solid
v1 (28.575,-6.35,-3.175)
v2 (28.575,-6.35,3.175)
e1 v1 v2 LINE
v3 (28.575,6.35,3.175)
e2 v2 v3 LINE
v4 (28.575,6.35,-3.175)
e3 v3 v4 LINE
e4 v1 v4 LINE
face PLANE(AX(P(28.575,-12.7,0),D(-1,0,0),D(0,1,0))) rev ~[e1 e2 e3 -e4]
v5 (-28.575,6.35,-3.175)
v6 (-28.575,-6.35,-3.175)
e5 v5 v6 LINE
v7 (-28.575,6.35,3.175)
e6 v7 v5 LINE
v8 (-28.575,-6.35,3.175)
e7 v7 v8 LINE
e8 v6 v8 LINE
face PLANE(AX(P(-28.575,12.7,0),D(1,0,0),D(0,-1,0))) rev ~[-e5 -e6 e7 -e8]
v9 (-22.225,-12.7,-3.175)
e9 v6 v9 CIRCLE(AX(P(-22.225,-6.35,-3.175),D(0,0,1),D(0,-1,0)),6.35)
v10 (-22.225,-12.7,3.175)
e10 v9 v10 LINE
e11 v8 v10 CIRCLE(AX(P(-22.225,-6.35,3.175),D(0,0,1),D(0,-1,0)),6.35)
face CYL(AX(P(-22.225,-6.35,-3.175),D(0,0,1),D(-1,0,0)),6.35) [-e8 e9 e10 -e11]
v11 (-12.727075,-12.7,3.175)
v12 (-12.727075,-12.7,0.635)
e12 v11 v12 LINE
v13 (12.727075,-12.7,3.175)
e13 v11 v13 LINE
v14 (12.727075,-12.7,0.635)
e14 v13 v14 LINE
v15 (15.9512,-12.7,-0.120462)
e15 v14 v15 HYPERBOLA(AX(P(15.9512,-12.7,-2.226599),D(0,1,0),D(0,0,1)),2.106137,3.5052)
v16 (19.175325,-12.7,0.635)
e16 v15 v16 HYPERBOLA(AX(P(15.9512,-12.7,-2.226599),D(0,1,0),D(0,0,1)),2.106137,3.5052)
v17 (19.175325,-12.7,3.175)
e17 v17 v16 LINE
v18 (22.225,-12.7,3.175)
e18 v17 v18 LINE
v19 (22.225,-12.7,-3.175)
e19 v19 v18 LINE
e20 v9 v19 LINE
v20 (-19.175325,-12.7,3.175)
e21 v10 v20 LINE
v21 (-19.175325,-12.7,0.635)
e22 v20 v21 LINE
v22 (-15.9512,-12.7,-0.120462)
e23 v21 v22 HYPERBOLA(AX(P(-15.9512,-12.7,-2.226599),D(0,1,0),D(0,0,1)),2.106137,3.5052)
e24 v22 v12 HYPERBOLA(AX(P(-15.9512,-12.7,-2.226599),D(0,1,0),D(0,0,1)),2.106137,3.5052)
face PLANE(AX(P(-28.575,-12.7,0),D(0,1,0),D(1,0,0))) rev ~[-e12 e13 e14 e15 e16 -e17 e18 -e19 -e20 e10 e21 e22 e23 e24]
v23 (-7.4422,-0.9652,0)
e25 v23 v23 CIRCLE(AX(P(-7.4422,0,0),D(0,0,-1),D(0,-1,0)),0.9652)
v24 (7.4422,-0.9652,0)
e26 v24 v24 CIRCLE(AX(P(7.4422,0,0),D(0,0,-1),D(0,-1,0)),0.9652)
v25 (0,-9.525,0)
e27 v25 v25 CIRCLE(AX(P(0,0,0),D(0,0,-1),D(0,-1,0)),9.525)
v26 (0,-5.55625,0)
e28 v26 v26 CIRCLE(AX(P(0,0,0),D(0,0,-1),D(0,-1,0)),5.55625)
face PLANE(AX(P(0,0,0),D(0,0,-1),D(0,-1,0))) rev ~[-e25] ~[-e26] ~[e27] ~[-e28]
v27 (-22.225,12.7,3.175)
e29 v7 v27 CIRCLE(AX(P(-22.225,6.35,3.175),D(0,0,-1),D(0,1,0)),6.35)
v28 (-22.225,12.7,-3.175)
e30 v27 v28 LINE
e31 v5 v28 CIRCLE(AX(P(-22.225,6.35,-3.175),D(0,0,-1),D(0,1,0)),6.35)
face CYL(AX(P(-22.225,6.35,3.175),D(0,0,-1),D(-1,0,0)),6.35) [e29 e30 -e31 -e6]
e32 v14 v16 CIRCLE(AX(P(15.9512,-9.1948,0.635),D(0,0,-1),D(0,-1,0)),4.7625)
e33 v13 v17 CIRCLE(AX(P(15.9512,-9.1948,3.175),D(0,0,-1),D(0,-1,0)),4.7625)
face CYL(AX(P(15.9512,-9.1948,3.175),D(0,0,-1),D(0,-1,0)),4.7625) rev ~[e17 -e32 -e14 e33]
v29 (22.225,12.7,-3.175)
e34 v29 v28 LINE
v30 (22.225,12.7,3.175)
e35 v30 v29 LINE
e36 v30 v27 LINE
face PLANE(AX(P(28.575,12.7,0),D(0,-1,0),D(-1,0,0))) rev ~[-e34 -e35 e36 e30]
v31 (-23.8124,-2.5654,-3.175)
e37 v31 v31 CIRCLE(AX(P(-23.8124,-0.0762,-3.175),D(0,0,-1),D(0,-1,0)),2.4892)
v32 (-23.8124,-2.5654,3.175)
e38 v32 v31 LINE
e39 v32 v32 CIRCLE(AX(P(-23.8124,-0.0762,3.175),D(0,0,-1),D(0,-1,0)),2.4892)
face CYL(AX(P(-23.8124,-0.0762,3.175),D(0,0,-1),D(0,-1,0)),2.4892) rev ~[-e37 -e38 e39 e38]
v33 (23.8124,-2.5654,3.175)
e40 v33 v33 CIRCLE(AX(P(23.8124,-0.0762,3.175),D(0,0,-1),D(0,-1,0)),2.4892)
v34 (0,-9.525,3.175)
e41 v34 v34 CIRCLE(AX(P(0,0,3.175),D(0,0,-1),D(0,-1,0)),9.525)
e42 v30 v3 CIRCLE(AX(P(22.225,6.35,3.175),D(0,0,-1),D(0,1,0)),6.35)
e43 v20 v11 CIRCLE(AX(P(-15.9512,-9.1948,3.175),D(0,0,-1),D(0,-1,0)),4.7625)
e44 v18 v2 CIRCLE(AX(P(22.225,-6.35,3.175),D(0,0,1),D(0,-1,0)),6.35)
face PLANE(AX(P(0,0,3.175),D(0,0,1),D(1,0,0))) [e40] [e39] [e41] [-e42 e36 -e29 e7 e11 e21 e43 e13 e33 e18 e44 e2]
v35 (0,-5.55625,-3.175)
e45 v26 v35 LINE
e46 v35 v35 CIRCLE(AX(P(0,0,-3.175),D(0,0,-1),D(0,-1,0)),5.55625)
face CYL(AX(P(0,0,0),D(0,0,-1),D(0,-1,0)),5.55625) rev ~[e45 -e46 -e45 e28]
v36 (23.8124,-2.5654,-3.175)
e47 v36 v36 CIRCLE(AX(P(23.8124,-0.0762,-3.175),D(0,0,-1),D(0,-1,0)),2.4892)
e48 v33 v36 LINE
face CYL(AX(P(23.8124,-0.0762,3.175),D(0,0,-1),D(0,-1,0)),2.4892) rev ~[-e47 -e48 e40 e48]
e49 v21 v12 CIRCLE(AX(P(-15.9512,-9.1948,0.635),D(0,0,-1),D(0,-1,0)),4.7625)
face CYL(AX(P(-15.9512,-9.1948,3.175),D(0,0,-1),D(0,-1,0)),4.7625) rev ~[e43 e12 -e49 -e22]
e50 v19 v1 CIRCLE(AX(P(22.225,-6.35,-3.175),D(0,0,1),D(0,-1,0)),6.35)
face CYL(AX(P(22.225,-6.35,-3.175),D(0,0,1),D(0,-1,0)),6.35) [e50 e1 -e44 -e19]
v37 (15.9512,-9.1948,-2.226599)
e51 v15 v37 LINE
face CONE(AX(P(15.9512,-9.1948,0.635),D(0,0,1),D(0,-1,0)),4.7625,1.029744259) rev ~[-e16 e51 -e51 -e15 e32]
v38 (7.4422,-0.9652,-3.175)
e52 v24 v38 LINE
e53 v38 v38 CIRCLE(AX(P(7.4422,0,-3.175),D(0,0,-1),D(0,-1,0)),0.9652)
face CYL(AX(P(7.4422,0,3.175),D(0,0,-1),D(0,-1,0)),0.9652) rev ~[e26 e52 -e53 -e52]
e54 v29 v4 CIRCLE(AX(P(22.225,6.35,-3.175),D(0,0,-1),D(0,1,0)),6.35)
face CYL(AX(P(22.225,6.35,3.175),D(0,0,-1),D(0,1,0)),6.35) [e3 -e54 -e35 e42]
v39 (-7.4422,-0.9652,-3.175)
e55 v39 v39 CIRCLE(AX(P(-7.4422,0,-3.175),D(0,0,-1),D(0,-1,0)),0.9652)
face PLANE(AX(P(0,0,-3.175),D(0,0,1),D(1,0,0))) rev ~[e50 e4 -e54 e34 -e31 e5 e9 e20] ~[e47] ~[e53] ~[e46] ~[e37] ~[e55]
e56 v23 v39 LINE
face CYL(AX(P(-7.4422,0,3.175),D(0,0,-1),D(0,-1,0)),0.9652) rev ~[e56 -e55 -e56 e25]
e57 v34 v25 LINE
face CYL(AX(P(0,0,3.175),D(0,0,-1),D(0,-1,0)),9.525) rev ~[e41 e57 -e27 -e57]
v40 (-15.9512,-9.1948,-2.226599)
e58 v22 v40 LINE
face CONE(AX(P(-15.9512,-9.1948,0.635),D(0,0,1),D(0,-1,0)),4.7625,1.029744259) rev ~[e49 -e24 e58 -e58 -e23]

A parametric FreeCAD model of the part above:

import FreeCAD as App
import Part
import Sketcher
Q = App.Units.Quantity


def edges_at(feature, points):
    """Names of the edges that pass closest to the given points."""
    edges = feature.Shape.Edges
    near = lambda p: min(range(len(edges)), key=lambda i: edges[i].distToShape(Part.Vertex(*p))[0])
    return sorted({f"Edge{near(p) + 1}" for p in points})


def add_polygon(sketch, points):
    """Adds a closed chain of lines whose ends are joined by coincident constraints."""
    first, n = sketch.GeometryCount, len(points)
    for a, b in zip(points, points[1:] + points[:1]):
        sketch.addGeometry(Part.LineSegment(App.Vector(*a, 0), App.Vector(*b, 0)), False)
    for i in range(n):
        sketch.addConstraint(Sketcher.Constraint("Coincident", first + i, 2, first + (i + 1) % n, 1))

doc = App.newDocument("Part")
params = doc.addObject("Spreadsheet::Sheet", "Params")
for row, (alias, value) in enumerate([
    ("sketch1_height", "1 in"),
    ("sketch1_width", "2.25 in"),
    ("pad1_length", "0.125 in"),
    ("pad1_length2", "0.125 in"),
    ("sketch2_diameter", "0.4375 in"),
    ("hole_diameter", "0.4375 in"),
    ("hole_cbore_diameter", "0.75 in"),
    ("hole_cbore_depth", "0.125 in"),
    ("sketch3_diameter", "0.196 in"),
    ("hole2_diameter", "0.196 in"),
    ("sketch4_diameter", "0.076 in"),
    ("hole3_diameter", "0.076 in"),
    ("fillet_radius", "0.25 in"),
    ("sketch5_diameter", "0.375 in"),
    ("hole4_diameter", "0.375 in"),
    ("hole4_depth", "0.1 in"),
], start=1):
    params.set(f"A{row}", alias)
    params.set(f"B{row}", "=" + value)
    params.setAlias(f"B{row}", alias)

body = doc.addObject("PartDesign::Body", "Body")

# Sketch on XY plane
sketch1 = doc.addObject("Sketcher::SketchObject", "Sketch")
body.addObject(sketch1)
sketch1.AttachmentSupport = (doc.XY_Plane, [""])
sketch1.MapMode = "FlatFace"
add_polygon(sketch1, [(-28.575, 12.7), (-28.575, -12.7), (28.575, -12.7), (28.575, 12.7)])  # lines 0-3
sketch1.addConstraint(Sketcher.Constraint("Vertical", 0))
sketch1.addConstraint(Sketcher.Constraint("Horizontal", 1))
sketch1.addConstraint(Sketcher.Constraint("Vertical", 2))
sketch1.addConstraint(Sketcher.Constraint("Horizontal", 3))
sketch1.addConstraint(Sketcher.Constraint("Symmetric", 0, 2, 2, 2, -1, 1))
sketch1.addConstraint(Sketcher.Constraint("DistanceY", 0, 2, 0, 1, Q("1 in")))
sketch1.addConstraint(Sketcher.Constraint("DistanceX", 1, 1, 1, 2, Q("2.25 in")))
sketch1.setExpression("Constraints[9]", "Params.sketch1_height")
sketch1.setExpression("Constraints[10]", "Params.sketch1_width")
pad1 = doc.addObject("PartDesign::Pad", "Pad")
body.addObject(pad1)
pad1.Profile = sketch1
pad1.Type = "TwoLengths"
pad1.setExpression("Length", "Params.pad1_length")
pad1.setExpression("Length2", "Params.pad1_length2")

# Sketch on XY plane
sketch2 = doc.addObject("Sketcher::SketchObject", "Sketch001")
body.addObject(sketch2)
sketch2.AttachmentSupport = (doc.XY_Plane, [""])
sketch2.MapMode = "FlatFace"
sketch2.AttachmentOffset = App.Placement(App.Vector(0, 0, 0.125 * 25.4), App.Rotation())
sketch2.addGeometry(Part.Circle(App.Vector(0, 0, 0), App.Vector(0, 0, 1), 5.55625), False)
sketch2.addConstraint(Sketcher.Constraint("Coincident", 0, 3, -1, 1))
sketch2.addConstraint(Sketcher.Constraint("Diameter", 0, Q("0.4375 in")))
sketch2.setExpression("Constraints[1]", "Params.sketch2_diameter")
doc.recompute()
hole = doc.addObject("PartDesign::Hole", "Hole")
body.addObject(hole)
hole.Profile = sketch2
hole.ThreadType = "None"
hole.setExpression("Diameter", "Params.hole_diameter")
hole.DepthType = "ThroughAll"
hole.HoleCutType = "Counterbore"
hole.setExpression("HoleCutDiameter", "Params.hole_cbore_diameter")
hole.setExpression("HoleCutDepth", "Params.hole_cbore_depth")

# Sketch on XY plane
sketch3 = doc.addObject("Sketcher::SketchObject", "Sketch002")
body.addObject(sketch3)
sketch3.AttachmentSupport = (doc.XY_Plane, [""])
sketch3.MapMode = "FlatFace"
sketch3.AttachmentOffset = App.Placement(App.Vector(0, 0, 0.125 * 25.4), App.Rotation())
sketch3.addGeometry(Part.Circle(App.Vector(-23.8124, -0.0762, 0), App.Vector(0, 0, 1), 2.4892), False)
sketch3.addGeometry(Part.Circle(App.Vector(23.8124, -0.0762, 0), App.Vector(0, 0, 1), 2.4892), False)
sketch3.addConstraint(Sketcher.Constraint("Equal", 0, 1))
sketch3.addConstraint(Sketcher.Constraint("Symmetric", 0, 3, 1, 3, -2))
sketch3.addConstraint(Sketcher.Constraint("Diameter", 0, Q("0.196 in")))
sketch3.addConstraint(Sketcher.Constraint("DistanceX", 0, 3, -1, 1, Q("0.9375 in")))
sketch3.addConstraint(Sketcher.Constraint("DistanceY", 0, 3, -1, 1, Q("0.003 in")))
sketch3.setExpression("Constraints[2]", "Params.sketch3_diameter")
doc.recompute()
hole2 = doc.addObject("PartDesign::Hole", "Hole001")
body.addObject(hole2)
hole2.Profile = sketch3
hole2.ThreadType = "None"
hole2.setExpression("Diameter", "Params.hole2_diameter")
hole2.DepthType = "ThroughAll"

# Sketch on XY plane
sketch4 = doc.addObject("Sketcher::SketchObject", "Sketch003")
body.addObject(sketch4)
sketch4.AttachmentSupport = (doc.XY_Plane, [""])
sketch4.MapMode = "FlatFace"
sketch4.AttachmentOffset = App.Placement(App.Vector(0, 0, 0.125 * 25.4), App.Rotation())
sketch4.addGeometry(Part.Circle(App.Vector(-7.4422, 0, 0), App.Vector(0, 0, 1), 0.9652), False)
sketch4.addGeometry(Part.Circle(App.Vector(7.4422, 0, 0), App.Vector(0, 0, 1), 0.9652), False)
sketch4.addConstraint(Sketcher.Constraint("Equal", 0, 1))
sketch4.addConstraint(Sketcher.Constraint("Symmetric", 0, 3, 1, 3, -1, 1))
sketch4.addConstraint(Sketcher.Constraint("PointOnObject", 0, 3, -1))
sketch4.addConstraint(Sketcher.Constraint("Diameter", 0, Q("0.076 in")))
sketch4.addConstraint(Sketcher.Constraint("DistanceX", 0, 3, -1, 1, Q("0.293 in")))
sketch4.setExpression("Constraints[3]", "Params.sketch4_diameter")
doc.recompute()
hole3 = doc.addObject("PartDesign::Hole", "Hole002")
body.addObject(hole3)
hole3.Profile = sketch4
hole3.ThreadType = "None"
hole3.setExpression("Diameter", "Params.hole3_diameter")
hole3.DepthType = "ThroughAll"
doc.recompute()

fillet = doc.addObject("PartDesign::Fillet", "Fillet")
body.addObject(fillet)
fillet.Base = (hole3, edges_at(hole3, [
    (28.575, 12.7, 0),
    (-28.575, 12.7, 0),
    (-28.575, -12.7, 0),
    (28.575, -12.7, 0),
]))
fillet.setExpression("Radius", "Params.fillet_radius")

# Sketch on XY plane
sketch5 = doc.addObject("Sketcher::SketchObject", "Sketch004")
body.addObject(sketch5)
sketch5.AttachmentSupport = (doc.XY_Plane, [""])
sketch5.MapMode = "FlatFace"
sketch5.AttachmentOffset = App.Placement(App.Vector(0, 0, 0.125 * 25.4), App.Rotation())
sketch5.addGeometry(Part.Circle(App.Vector(15.9512, -9.1948, 0), App.Vector(0, 0, 1), 4.7625), False)
sketch5.addGeometry(Part.Circle(App.Vector(-15.9512, -9.1948, 0), App.Vector(0, 0, 1), 4.7625), False)
sketch5.addConstraint(Sketcher.Constraint("Equal", 0, 1))
sketch5.addConstraint(Sketcher.Constraint("Symmetric", 0, 3, 1, 3, -2))
sketch5.addConstraint(Sketcher.Constraint("Diameter", 0, Q("0.375 in")))
sketch5.addConstraint(Sketcher.Constraint("DistanceX", -1, 1, 0, 3, Q("0.628 in")))
sketch5.addConstraint(Sketcher.Constraint("DistanceY", 0, 3, -1, 1, Q("0.362 in")))
sketch5.setExpression("Constraints[2]", "Params.sketch5_diameter")
doc.recompute()
hole4 = doc.addObject("PartDesign::Hole", "Hole003")
body.addObject(hole4)
hole4.Profile = sketch5
hole4.ThreadType = "None"
hole4.setExpression("Diameter", "Params.hole4_diameter")
hole4.DepthType = "Dimension"
hole4.setExpression("Depth", "Params.hole4_depth")
hole4.DrillPoint = "Angled"
hole4.DrillPointAngle = 118

doc.recompute()
